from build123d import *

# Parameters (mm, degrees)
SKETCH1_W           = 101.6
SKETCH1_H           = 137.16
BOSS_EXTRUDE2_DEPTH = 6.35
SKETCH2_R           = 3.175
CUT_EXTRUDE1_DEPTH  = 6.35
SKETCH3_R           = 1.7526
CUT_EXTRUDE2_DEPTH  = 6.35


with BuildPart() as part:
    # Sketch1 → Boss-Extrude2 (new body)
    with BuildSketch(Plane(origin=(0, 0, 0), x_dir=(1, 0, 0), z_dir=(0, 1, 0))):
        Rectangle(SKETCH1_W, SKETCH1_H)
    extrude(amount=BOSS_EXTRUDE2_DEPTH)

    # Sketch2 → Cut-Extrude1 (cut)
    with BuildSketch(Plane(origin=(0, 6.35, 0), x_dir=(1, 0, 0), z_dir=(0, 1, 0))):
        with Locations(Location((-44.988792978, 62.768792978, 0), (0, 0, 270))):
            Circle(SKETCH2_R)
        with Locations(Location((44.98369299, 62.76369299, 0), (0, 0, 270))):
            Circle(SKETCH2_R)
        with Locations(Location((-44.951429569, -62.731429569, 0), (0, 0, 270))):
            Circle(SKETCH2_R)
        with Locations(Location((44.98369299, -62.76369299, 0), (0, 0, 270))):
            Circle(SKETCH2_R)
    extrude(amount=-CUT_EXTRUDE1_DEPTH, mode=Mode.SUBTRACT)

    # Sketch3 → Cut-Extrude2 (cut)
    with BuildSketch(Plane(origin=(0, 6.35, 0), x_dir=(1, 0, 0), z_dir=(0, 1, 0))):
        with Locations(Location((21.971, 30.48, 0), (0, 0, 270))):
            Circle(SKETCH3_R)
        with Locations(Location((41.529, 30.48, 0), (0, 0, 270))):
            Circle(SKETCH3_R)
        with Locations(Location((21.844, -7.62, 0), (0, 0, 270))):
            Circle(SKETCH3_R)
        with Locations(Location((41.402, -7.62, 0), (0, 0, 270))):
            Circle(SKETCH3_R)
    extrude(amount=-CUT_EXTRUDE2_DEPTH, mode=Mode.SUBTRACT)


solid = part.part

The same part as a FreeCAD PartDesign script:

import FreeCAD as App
import Part
import Sketcher
from FreeCAD import Vector
Q = App.Units.Quantity


def add_polygon(sketch, points):
    """Adds a closed chain of lines whose ends are joined by coincident constraints."""
    first, n = sketch.GeometryCount, len(points)
    for a, b in zip(points, points[1:] + points[:1]):
        sketch.addGeometry(Part.LineSegment(App.Vector(*a, 0), App.Vector(*b, 0)), False)
    for i in range(n):
        sketch.addConstraint(Sketcher.Constraint("Coincident", first + i, 2, first + (i + 1) % n, 1))

doc = App.newDocument("Part")
params = doc.addObject("Spreadsheet::Sheet", "Params")
for row, (alias, value) in enumerate([
    ("sketch1_width", "4 in"),
    ("sketch1_height", "5.4 in"),
    ("pad1_length", "0.25 in"),
    ("sketch2_diameter", "0.25 in"),
    ("pocket1_length", "0.25 in"),
    ("sketch3_diameter", "0.138 in"),
    ("pocket2_length", "0.25 in"),
], start=1):
    params.set(f"A{row}", alias)
    params.set(f"B{row}", "=" + value)
    params.setAlias(f"B{row}", alias)

body = doc.addObject("PartDesign::Body", "Body")

sketch1 = body.newObject("Sketcher::SketchObject", "Sketch")
sketch1.AttachmentSupport = (doc.getObject("XZ_Plane"), [""])
sketch1.MapMode = "FlatFace"
add_polygon(sketch1, [(-50.8, -68.58), (-50.8, 68.58), (50.8, 68.58), (50.8, -68.58)])
sketch1.addConstraint(Sketcher.Constraint("Vertical", 0))
sketch1.addConstraint(Sketcher.Constraint("Horizontal", 1))
sketch1.addConstraint(Sketcher.Constraint("Vertical", 2))
sketch1.addConstraint(Sketcher.Constraint("Horizontal", 3))
sketch1.addConstraint(Sketcher.Constraint("Symmetric", 0, 2, 2, 2, -1, 1))
sketch1.addConstraint(Sketcher.Constraint("DistanceX", 1, 1, 1, 2, Q("4 in")))
sketch1.addConstraint(Sketcher.Constraint("DistanceY", 0, 1, 0, 2, Q("5.4 in")))
sketch1.setExpression("Constraints[9]", "Params.sketch1_width")
sketch1.setExpression("Constraints[10]", "Params.sketch1_height")
pad1 = body.newObject("PartDesign::Pad", "Pad")
pad1.Profile = sketch1
pad1.setExpression("Length", "Params.pad1_length")
pad1.Reversed = True

sketch2 = body.newObject("Sketcher::SketchObject", "Sketch001")
sketch2.AttachmentSupport = (doc.getObject("XZ_Plane"), [""])
sketch2.MapMode = "FlatFace"
sketch2.AttachmentOffset = App.Placement(Vector(0, 0, -0.25 * 25.4), App.Rotation())
sketch2.addGeometry(Part.Circle(Vector(-44.988793, -62.768793, 0), Vector(0, 0, 1), 3.175), False)
sketch2.addGeometry(Part.Circle(Vector(44.983693, -62.763693, 0), Vector(0, 0, 1), 3.175), False)
sketch2.addGeometry(Part.Circle(Vector(-44.95143, 62.73143, 0), Vector(0, 0, 1), 3.175), False)
sketch2.addGeometry(Part.Circle(Vector(44.983693, 62.763693, 0), Vector(0, 0, 1), 3.175), False)
sketch2.addConstraint(Sketcher.Constraint("Equal", 0, 1))
sketch2.addConstraint(Sketcher.Constraint("Equal", 1, 2))
sketch2.addConstraint(Sketcher.Constraint("Equal", 2, 3))
sketch2.addConstraint(Sketcher.Constraint("Symmetric", 1, 3, 3, 3, -1))
sketch2.addConstraint(Sketcher.Constraint("Diameter", 0, Q("0.25 in")))
sketch2.addConstraint(Sketcher.Constraint("DistanceY", 0, 3, 1, 3, 0.0051))
sketch2.addConstraint(Sketcher.Constraint("DistanceX", 2, 3, -1, 1, 44.95143))
sketch2.addConstraint(Sketcher.Constraint("DistanceY", -1, 1, 2, 3, 62.73143))
sketch2.addConstraint(Sketcher.Constraint("DistanceX", 0, 3, -1, 1, 44.988793))
sketch2.addConstraint(Sketcher.Constraint("DistanceY", 0, 3, -1, 1, 62.768793))
sketch2.addConstraint(Sketcher.Constraint("DistanceX", -1, 1, 1, 3, 44.983693))
sketch2.setExpression("Constraints[4]", "Params.sketch2_diameter")
pocket1 = body.newObject("PartDesign::Pocket", "Pocket")
pocket1.Profile = sketch2
pocket1.setExpression("Length", "Params.pocket1_length")
pocket1.Reversed = True

sketch3 = body.newObject("Sketcher::SketchObject", "Sketch002")
sketch3.AttachmentSupport = (doc.getObject("XZ_Plane"), [""])
sketch3.MapMode = "FlatFace"
sketch3.AttachmentOffset = App.Placement(Vector(0, 0, -0.25 * 25.4), App.Rotation())
sketch3.addGeometry(Part.Circle(Vector(21.971, -30.48, 0), Vector(0, 0, 1), 1.7526), False)
sketch3.addGeometry(Part.Circle(Vector(41.529, -30.48, 0), Vector(0, 0, 1), 1.7526), False)
sketch3.addGeometry(Part.Circle(Vector(21.844, 7.62, 0), Vector(0, 0, 1), 1.7526), False)
sketch3.addGeometry(Part.Circle(Vector(41.402, 7.62, 0), Vector(0, 0, 1), 1.7526), False)
sketch3.addConstraint(Sketcher.Constraint("Equal", 0, 1))
sketch3.addConstraint(Sketcher.Constraint("Equal", 1, 2))
sketch3.addConstraint(Sketcher.Constraint("Equal", 2, 3))
sketch3.addConstraint(Sketcher.Constraint("Horizontal", 0, 3, 1, 3))
sketch3.addConstraint(Sketcher.Constraint("Horizontal", 2, 3, 3, 3))
sketch3.addConstraint(Sketcher.Constraint("Diameter", 0, Q("0.138 in")))
sketch3.addConstraint(Sketcher.Constraint("DistanceY", 0, 3, -1, 1, Q("1.2 in")))
sketch3.addConstraint(Sketcher.Constraint("DistanceY", -1, 1, 2, 3, Q("0.3 in")))
sketch3.addConstraint(Sketcher.Constraint("DistanceX", -1, 1, 2, 3, Q("0.86 in")))
sketch3.addConstraint(Sketcher.Constraint("DistanceX", -1, 1, 3, 3, Q("1.63 in")))
sketch3.addConstraint(Sketcher.Constraint("DistanceX", 0, 3, 1, 3, Q("0.77 in")))
sketch3.addConstraint(Sketcher.Constraint("DistanceX", -1, 1, 0, 3, Q("0.865 in")))
sketch3.setExpression("Constraints[5]", "Params.sketch3_diameter")
pocket2 = body.newObject("PartDesign::Pocket", "Pocket001")
pocket2.Profile = sketch3
pocket2.setExpression("Length", "Params.pocket2_length")
pocket2.Reversed = True

doc.recompute()
